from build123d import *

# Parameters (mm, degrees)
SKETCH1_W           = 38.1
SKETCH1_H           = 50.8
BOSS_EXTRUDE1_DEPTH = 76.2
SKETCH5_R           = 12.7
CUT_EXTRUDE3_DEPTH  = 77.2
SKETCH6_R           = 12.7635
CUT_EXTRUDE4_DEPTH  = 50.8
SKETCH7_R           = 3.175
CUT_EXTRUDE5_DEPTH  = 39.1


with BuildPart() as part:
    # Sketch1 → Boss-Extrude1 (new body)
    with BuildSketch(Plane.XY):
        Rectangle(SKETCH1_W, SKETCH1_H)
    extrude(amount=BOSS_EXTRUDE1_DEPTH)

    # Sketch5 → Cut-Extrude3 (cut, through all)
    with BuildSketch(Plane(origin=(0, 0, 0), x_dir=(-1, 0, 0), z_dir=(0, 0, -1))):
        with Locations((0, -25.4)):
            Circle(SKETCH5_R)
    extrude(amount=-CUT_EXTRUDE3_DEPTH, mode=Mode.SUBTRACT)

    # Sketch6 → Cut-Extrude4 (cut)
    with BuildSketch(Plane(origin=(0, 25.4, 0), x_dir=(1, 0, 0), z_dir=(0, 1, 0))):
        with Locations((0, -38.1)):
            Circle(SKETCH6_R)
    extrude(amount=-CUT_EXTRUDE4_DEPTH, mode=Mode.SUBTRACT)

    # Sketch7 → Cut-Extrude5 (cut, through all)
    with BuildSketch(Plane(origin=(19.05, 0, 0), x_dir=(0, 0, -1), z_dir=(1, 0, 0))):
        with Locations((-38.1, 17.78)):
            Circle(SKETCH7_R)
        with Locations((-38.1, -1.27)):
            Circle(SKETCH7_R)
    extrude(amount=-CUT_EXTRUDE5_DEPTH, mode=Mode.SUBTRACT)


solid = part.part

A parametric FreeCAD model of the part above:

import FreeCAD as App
import Part
import Sketcher

V = App.Vector
Q = App.Units.Quantity


def add_polygon(sketch, points):
    """Adds a closed chain of lines whose ends are joined by coincident constraints."""
    first, n = sketch.GeometryCount, len(points)
    for a, b in zip(points, points[1:] + points[:1]):
        sketch.addGeometry(Part.LineSegment(App.Vector(*a, 0), App.Vector(*b, 0)), False)
    for i in range(n):
        sketch.addConstraint(Sketcher.Constraint("Coincident", first + i, 2, first + (i + 1) % n, 1))

doc = App.newDocument("Part")
params = doc.addObject("Spreadsheet::Sheet", "Params")
for row, (alias, value) in enumerate([
    ("sketch1_height", "2 in"),
    ("sketch1_width", "1.5 in"),
    ("pad1_length", "3 in"),
    ("sketch2_diameter", "1 in"),
    ("sketch3_diameter", "1.005 in"),
    ("pocket2_length", "2 in"),
    ("sketch4_diameter", "0.25 in"),
], start=1):
    params.set(f"A{row}", alias)
    params.set(f"B{row}", "=" + value)
    params.setAlias(f"B{row}", alias)

body = doc.addObject("PartDesign::Body", "Body")

# Sketch on XY plane
sketch1 = body.newObject("Sketcher::SketchObject", "Sketch")
sketch1.AttachmentSupport = (doc.getObject("XY_Plane"), [""])
sketch1.MapMode = "FlatFace"
add_polygon(sketch1, [(-19.05, 25.4), (-19.05, -25.4), (19.05, -25.4), (19.05, 25.4)])  # lines 0-3
sketch1.addConstraint([
    Sketcher.Constraint("Vertical", 0),
    Sketcher.Constraint("Horizontal", 1),
    Sketcher.Constraint("Vertical", 2),
    Sketcher.Constraint("Horizontal", 3),
    Sketcher.Constraint("Symmetric", 0, 2, 2, 2, -1, 1),
    Sketcher.Constraint("DistanceY", 0, 2, 0, 1, Q("2 in")),
    Sketcher.Constraint("DistanceX", 1, 1, 1, 2, Q("1.5 in")),
])
sketch1.setExpression("Constraints[9]", "Params.sketch1_height")
sketch1.setExpression("Constraints[10]", "Params.sketch1_width")
pad1 = body.newObject("PartDesign::Pad", "Pad")
pad1.Profile = sketch1
pad1.setExpression("Length", "Params.pad1_length")

# Sketch on XY plane
sketch2 = body.newObject("Sketcher::SketchObject", "Sketch001")
sketch2.AttachmentSupport = (doc.getObject("XY_Plane"), [""])
sketch2.MapMode = "FlatFace"
sketch2.addGeometry(Part.Circle(V(0, -25.4, 0), V(0, 0, 1), 12.7), False)
sketch2.addConstraint([
    Sketcher.Constraint("PointOnObject", 0, 3, -2),
    Sketcher.Constraint("Diameter", 0, Q("1 in")),
    Sketcher.Constraint("DistanceY", 0, 3, -1, 1, Q("1 in")),
])
sketch2.setExpression("Constraints[1]", "Params.sketch2_diameter")
pocket1 = body.newObject("PartDesign::Pocket", "Pocket")
pocket1.Profile = sketch2
pocket1.Type = "ThroughAll"
pocket1.Reversed = True

# Sketch on XZ plane
sketch3 = body.newObject("Sketcher::SketchObject", "Sketch002")
sketch3.AttachmentSupport = (doc.getObject("XZ_Plane"), [""])
sketch3.MapMode = "FlatFace"
sketch3.AttachmentOffset = App.Placement(V(0, 0, -1 * 25.4), App.Rotation())
sketch3.addGeometry(Part.Circle(V(0, 38.1, 0), V(0, 0, 1), 12.7635), False)
sketch3.addConstraint([
    Sketcher.Constraint("PointOnObject", 0, 3, -2),
    Sketcher.Constraint("Diameter", 0, Q("1.005 in")),
    Sketcher.Constraint("DistanceY", -1, 1, 0, 3, Q("1.5 in")),
])
sketch3.setExpression("Constraints[1]", "Params.sketch3_diameter")
pocket2 = body.newObject("PartDesign::Pocket", "Pocket001")
pocket2.Profile = sketch3
pocket2.setExpression("Length", "Params.pocket2_length")
pocket2.Reversed = True

# Sketch on YZ plane
sketch4 = body.newObject("Sketcher::SketchObject", "Sketch003")
sketch4.AttachmentSupport = (doc.getObject("YZ_Plane"), [""])
sketch4.MapMode = "FlatFace"
sketch4.AttachmentOffset = App.Placement(V(0, 0, 0.75 * 25.4), App.Rotation())
sketch4.addGeometry([
    Part.Circle(V(17.78, 38.1, 0), V(0, 0, 1), 3.175),
    Part.Circle(V(-1.27, 38.1, 0), V(0, 0, 1), 3.175),
], False)
sketch4.addConstraint([
    Sketcher.Constraint("Equal", 0, 1),
    Sketcher.Constraint("Horizontal", 0, 3, 1, 3),
    Sketcher.Constraint("Diameter", 0, Q("0.25 in")),
    Sketcher.Constraint("DistanceX", -1, 1, 0, 3, Q("0.7 in")),
    Sketcher.Constraint("DistanceY", -1, 1, 0, 3, Q("1.5 in")),
    Sketcher.Constraint("DistanceX", 1, 3, -1, 1, Q("0.05 in")),
])
sketch4.setExpression("Constraints[2]", "Params.sketch4_diameter")
pocket3 = body.newObject("PartDesign::Pocket", "Pocket002")
pocket3.Profile = sketch4
pocket3.Type = "ThroughAll"

doc.recompute()
